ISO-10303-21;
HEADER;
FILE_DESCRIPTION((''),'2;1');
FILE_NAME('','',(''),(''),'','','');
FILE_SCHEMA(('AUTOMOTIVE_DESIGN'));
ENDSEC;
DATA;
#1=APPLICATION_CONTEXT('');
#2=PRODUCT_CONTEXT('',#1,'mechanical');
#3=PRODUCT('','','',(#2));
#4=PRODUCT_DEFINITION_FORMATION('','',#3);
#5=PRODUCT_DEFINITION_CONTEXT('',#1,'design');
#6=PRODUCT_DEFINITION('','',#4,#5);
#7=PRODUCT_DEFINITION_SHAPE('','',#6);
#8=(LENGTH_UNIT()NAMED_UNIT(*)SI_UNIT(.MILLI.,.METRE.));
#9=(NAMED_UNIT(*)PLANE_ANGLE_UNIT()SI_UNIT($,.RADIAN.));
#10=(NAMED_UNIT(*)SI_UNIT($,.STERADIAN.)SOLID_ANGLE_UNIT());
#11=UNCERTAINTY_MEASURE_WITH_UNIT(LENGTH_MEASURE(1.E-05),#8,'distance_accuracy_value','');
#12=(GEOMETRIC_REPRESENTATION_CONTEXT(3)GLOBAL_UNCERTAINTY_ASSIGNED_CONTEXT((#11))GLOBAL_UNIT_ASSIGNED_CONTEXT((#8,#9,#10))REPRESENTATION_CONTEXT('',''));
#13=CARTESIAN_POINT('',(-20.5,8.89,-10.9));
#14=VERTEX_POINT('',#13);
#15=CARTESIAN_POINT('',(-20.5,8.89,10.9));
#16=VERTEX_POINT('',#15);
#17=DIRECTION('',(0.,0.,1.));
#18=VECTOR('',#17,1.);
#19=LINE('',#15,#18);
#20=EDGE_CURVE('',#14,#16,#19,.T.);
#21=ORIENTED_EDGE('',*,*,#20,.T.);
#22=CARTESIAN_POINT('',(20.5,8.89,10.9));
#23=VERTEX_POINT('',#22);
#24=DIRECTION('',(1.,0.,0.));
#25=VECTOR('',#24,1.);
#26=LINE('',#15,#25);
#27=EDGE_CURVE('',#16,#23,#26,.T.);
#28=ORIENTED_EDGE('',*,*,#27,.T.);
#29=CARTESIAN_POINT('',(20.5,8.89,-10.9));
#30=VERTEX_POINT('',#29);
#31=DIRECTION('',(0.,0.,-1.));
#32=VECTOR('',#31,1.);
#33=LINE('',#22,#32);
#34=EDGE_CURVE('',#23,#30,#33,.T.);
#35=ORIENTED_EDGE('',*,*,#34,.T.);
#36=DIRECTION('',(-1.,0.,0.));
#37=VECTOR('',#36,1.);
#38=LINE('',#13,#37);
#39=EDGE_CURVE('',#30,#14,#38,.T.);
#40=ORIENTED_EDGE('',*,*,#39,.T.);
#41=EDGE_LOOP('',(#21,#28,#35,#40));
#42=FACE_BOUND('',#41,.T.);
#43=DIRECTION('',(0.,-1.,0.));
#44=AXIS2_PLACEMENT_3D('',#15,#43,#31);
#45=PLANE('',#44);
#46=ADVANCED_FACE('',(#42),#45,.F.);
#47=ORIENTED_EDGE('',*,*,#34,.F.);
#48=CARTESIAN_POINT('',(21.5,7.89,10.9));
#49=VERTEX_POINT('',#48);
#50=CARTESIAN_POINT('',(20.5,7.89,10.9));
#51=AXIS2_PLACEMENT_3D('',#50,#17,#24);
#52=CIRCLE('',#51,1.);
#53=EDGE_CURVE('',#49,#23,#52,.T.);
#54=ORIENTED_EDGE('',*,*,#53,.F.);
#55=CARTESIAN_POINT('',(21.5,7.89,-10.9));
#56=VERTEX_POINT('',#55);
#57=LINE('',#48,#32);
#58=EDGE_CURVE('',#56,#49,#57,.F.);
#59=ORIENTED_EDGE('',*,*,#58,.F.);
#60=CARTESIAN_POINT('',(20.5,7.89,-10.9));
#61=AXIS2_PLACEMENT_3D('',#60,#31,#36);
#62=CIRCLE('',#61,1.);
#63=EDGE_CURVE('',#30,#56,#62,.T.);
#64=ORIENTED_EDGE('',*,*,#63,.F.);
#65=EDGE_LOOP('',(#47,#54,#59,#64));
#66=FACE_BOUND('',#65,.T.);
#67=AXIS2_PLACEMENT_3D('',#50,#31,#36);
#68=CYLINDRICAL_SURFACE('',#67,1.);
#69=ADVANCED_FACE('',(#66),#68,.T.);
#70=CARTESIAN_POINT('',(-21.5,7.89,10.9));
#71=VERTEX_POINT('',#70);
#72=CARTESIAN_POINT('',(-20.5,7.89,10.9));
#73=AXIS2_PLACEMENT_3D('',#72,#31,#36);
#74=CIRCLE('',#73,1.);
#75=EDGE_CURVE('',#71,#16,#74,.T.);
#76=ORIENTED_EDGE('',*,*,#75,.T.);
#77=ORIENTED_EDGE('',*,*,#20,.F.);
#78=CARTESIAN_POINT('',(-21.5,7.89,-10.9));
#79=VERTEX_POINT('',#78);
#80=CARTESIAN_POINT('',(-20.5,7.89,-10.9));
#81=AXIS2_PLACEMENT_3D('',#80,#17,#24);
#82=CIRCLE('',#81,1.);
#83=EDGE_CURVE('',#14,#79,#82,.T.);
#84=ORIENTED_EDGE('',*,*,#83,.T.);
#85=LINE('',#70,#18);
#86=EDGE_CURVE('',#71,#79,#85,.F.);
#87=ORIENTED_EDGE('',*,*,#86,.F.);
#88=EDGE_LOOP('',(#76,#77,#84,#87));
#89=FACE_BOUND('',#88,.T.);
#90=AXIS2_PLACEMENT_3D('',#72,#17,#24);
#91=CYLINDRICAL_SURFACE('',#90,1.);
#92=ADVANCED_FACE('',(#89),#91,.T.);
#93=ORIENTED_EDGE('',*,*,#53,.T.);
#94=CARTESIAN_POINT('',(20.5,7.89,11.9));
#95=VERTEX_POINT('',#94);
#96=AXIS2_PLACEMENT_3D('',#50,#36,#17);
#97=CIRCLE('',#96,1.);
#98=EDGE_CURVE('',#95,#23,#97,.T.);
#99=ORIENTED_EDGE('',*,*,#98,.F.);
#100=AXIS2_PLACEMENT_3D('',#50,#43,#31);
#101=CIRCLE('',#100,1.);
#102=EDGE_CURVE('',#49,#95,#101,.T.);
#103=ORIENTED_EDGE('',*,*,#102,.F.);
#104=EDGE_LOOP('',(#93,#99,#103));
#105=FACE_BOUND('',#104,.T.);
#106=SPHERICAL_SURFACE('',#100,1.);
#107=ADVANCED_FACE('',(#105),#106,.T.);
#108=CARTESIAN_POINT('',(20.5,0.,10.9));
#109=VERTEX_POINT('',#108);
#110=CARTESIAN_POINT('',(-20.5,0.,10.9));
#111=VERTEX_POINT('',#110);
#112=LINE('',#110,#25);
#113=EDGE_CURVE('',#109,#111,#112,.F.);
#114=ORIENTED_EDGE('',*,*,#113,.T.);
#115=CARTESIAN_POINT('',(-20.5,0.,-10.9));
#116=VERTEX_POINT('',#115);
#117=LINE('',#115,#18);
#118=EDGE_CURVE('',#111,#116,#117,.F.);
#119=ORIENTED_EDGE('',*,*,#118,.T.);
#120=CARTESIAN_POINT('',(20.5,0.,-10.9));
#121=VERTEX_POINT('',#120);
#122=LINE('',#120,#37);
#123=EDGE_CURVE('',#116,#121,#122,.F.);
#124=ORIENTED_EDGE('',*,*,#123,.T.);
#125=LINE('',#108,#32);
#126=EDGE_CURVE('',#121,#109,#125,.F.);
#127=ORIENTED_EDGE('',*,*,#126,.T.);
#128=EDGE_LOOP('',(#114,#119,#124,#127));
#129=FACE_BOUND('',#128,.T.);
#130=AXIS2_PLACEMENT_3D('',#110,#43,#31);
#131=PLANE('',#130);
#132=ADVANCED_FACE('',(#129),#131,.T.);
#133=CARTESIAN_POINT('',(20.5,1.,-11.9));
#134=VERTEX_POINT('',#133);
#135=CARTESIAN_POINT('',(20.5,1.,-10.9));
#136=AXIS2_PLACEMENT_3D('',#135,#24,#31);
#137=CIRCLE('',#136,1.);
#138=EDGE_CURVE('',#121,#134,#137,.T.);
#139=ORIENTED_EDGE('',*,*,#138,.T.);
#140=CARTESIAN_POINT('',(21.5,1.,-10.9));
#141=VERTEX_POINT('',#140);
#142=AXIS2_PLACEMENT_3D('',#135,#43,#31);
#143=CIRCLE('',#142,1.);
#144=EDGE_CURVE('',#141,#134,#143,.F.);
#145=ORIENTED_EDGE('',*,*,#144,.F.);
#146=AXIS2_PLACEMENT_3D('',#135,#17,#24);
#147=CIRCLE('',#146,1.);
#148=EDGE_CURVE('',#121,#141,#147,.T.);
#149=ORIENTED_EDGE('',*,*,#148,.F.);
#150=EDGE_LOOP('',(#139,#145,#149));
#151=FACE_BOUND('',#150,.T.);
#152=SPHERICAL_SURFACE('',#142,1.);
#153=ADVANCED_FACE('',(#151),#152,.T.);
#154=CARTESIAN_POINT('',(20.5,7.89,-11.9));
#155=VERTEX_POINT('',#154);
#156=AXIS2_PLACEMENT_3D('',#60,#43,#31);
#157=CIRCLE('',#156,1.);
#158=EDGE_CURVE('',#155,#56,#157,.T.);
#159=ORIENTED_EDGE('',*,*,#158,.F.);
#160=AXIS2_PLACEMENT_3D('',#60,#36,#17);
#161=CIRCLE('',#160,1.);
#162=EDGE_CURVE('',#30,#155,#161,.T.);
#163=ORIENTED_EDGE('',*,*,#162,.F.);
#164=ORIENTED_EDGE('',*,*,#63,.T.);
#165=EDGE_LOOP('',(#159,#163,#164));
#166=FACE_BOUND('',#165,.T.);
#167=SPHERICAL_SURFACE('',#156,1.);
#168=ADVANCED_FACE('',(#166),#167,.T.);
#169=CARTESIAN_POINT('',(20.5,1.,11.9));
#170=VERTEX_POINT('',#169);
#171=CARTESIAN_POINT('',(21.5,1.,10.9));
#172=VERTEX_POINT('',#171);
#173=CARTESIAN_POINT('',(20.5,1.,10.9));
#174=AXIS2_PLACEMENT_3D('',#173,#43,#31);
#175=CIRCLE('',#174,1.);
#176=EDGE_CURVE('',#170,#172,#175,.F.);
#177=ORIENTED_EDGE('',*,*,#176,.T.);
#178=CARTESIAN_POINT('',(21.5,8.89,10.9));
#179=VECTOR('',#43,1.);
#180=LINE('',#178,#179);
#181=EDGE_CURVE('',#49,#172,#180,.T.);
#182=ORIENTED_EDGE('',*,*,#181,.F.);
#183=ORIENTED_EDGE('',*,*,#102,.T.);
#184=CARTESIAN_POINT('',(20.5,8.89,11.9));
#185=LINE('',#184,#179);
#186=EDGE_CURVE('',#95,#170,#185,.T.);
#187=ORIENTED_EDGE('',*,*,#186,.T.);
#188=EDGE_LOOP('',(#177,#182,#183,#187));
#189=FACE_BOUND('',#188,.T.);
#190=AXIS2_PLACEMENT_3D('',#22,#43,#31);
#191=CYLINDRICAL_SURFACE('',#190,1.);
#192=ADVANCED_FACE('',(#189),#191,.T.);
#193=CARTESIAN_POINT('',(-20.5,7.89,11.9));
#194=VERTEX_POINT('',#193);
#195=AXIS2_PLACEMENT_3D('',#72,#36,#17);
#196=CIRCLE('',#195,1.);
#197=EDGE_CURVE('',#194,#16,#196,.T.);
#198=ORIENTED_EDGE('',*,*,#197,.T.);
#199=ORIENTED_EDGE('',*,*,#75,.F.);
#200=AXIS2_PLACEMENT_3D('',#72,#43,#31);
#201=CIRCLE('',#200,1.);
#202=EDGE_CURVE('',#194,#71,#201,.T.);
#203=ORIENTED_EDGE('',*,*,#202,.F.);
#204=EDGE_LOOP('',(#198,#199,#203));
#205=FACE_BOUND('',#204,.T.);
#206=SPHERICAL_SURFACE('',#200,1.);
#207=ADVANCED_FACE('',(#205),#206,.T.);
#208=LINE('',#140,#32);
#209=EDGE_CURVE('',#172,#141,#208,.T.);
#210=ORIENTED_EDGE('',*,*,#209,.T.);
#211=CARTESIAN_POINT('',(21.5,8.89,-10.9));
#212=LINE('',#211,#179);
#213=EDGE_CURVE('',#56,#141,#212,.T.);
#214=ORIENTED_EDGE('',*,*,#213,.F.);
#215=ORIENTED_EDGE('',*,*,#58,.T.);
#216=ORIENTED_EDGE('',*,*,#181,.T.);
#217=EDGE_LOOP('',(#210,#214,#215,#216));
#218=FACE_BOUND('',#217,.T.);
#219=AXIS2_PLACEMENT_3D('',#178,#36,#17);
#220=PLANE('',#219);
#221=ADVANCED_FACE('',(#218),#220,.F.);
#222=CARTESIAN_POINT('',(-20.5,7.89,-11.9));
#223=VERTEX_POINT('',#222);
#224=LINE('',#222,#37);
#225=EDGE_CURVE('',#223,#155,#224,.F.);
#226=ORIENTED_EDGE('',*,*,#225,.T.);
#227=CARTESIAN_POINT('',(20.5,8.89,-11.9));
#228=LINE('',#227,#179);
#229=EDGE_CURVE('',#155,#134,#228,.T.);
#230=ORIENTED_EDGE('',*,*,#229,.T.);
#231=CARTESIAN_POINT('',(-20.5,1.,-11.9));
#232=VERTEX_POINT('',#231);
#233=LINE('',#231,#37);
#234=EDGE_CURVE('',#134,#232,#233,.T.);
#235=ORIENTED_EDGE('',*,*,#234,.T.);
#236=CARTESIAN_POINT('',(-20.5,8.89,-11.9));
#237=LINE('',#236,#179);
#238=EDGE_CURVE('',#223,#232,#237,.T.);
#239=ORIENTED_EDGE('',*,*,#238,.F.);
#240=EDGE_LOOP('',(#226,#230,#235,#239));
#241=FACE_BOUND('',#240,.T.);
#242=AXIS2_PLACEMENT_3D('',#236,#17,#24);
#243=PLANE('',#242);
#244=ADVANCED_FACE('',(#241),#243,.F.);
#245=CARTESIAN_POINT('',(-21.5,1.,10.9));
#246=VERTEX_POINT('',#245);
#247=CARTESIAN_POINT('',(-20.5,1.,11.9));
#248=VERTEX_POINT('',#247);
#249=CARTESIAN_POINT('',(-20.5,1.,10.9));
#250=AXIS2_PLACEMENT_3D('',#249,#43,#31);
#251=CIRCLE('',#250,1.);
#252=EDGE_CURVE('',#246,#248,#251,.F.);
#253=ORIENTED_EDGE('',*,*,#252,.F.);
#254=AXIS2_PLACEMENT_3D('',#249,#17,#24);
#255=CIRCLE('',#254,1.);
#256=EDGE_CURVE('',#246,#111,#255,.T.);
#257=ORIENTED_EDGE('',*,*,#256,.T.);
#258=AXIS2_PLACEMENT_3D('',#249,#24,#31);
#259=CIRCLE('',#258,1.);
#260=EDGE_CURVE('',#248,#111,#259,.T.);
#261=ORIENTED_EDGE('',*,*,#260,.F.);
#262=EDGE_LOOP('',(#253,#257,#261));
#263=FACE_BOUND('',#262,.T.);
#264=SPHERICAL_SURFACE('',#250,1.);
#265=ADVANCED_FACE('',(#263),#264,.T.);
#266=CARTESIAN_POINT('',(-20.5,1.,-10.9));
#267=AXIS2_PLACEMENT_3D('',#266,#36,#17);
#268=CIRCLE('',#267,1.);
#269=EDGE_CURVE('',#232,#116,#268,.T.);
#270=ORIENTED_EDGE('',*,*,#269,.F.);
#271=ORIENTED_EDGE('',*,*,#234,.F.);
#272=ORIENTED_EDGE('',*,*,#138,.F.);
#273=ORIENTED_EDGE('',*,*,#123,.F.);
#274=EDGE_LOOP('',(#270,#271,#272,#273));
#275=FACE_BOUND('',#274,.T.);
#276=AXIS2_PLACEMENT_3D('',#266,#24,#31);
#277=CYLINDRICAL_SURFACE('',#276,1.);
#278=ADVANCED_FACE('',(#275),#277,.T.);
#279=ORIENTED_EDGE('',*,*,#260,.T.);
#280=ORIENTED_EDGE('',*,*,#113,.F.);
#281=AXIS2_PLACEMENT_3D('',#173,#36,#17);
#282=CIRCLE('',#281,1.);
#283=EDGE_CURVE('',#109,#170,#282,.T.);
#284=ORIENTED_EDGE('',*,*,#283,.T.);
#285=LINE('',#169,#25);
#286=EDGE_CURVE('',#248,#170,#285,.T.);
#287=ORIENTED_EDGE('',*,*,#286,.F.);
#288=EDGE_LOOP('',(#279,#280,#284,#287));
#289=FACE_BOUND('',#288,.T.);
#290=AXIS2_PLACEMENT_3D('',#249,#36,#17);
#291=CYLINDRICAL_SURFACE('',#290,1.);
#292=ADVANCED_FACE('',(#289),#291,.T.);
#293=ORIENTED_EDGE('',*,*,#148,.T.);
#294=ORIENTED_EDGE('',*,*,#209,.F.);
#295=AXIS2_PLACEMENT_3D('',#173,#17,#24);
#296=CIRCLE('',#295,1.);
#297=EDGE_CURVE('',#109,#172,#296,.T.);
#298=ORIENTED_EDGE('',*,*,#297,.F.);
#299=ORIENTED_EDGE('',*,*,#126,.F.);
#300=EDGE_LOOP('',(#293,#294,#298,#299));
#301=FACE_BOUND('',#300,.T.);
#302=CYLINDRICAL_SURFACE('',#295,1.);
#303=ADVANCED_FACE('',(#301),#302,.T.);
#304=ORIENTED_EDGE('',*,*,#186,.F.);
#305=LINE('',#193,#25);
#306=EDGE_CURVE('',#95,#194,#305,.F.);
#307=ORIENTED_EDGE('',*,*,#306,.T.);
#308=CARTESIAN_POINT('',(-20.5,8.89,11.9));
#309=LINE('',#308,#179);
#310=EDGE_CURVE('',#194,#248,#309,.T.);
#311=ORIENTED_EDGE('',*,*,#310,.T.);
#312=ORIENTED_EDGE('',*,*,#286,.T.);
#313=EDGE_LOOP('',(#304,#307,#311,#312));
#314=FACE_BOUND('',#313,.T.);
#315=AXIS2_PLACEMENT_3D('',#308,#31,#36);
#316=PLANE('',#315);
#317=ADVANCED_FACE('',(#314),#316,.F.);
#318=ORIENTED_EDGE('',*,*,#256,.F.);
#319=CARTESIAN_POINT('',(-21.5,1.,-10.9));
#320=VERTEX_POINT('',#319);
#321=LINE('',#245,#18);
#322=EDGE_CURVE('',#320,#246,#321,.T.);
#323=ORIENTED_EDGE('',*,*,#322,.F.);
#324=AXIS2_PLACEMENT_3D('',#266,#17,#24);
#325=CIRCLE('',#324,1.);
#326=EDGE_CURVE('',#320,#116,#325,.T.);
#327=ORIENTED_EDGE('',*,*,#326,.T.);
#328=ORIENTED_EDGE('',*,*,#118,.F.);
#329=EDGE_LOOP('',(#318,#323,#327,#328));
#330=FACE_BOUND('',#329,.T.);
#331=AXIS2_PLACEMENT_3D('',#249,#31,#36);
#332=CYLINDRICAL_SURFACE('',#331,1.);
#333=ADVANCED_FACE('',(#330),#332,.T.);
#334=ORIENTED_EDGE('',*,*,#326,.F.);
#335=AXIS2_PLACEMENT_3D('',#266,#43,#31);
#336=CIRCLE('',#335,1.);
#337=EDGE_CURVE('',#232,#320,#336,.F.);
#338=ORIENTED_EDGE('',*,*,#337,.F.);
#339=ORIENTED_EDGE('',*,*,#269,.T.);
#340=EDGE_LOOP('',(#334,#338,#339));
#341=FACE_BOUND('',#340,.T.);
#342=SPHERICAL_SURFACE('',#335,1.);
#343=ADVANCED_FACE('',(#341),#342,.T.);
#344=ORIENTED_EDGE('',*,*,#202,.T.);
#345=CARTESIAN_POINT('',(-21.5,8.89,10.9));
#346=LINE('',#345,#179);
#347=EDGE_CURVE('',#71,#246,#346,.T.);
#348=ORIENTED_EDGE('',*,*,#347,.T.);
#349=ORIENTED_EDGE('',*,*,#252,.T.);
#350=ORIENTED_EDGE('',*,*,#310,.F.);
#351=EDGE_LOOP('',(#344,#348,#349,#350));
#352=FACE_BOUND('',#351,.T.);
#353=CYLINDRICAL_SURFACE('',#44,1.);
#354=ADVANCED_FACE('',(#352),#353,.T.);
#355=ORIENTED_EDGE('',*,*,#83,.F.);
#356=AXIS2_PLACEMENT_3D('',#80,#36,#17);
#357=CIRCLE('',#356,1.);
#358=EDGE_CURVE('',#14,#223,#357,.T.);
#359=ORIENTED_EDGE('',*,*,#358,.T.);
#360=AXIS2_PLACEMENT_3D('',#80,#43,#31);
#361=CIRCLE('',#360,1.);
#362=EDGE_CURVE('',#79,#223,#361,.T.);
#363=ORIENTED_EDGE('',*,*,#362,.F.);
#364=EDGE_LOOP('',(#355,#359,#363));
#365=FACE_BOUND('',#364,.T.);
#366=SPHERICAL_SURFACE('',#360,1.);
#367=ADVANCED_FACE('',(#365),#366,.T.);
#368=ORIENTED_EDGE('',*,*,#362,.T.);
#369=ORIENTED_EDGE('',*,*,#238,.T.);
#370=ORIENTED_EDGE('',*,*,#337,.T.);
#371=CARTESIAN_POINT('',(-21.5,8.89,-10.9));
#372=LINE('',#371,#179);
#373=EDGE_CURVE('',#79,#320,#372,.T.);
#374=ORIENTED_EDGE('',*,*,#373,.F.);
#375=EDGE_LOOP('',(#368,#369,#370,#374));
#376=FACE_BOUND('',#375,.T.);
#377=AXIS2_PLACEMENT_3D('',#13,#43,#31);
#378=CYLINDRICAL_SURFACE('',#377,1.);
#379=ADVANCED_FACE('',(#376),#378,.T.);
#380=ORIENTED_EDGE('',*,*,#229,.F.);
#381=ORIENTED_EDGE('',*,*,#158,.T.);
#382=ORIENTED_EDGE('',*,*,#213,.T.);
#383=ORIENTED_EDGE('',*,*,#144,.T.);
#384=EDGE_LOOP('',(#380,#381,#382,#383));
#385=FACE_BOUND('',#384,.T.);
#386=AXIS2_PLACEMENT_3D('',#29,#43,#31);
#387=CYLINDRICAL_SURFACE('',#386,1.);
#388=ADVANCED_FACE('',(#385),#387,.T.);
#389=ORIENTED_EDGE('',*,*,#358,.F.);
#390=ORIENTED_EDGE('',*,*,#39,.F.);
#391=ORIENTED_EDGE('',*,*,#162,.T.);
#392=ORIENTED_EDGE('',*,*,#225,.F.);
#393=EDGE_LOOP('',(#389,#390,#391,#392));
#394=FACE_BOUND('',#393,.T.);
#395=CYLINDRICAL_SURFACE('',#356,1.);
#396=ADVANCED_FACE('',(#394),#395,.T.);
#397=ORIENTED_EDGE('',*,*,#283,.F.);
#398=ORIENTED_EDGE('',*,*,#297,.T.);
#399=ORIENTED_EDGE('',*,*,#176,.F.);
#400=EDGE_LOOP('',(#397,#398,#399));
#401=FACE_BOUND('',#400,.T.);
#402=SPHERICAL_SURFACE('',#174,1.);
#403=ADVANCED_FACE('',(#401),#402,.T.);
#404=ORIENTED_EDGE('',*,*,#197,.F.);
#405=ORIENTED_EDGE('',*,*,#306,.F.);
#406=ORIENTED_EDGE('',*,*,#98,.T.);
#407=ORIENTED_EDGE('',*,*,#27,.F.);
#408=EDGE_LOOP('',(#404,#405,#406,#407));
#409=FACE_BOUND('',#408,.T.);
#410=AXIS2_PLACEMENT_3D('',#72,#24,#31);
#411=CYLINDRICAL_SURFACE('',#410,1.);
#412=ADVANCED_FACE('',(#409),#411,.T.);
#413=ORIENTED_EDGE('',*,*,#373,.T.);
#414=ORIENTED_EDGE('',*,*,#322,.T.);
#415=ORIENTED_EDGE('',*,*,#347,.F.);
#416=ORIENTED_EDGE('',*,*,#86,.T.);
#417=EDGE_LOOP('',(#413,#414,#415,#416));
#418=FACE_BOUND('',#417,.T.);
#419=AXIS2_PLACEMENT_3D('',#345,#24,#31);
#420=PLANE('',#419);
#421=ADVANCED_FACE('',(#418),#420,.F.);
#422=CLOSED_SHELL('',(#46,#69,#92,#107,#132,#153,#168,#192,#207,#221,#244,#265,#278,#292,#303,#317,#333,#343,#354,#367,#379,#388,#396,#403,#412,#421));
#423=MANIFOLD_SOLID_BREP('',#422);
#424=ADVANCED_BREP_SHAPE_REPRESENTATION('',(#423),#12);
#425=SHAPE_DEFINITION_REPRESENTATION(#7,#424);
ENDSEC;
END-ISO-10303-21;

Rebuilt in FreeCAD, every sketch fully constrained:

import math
import FreeCAD as App
import Part
import Sketcher
from FreeCAD import Vector
Q = App.Units.Quantity


def edges_at(feature, points):
    """Names of the edges that pass closest to the given points."""
    edges = feature.Shape.Edges
    near = lambda p: min(range(len(edges)), key=lambda i: edges[i].distToShape(Part.Vertex(*p))[0])
    return sorted({f"Edge{near(p) + 1}" for p in points})

doc = App.newDocument("Part")
body = doc.addObject("PartDesign::Body", "Body")

# Sketch on XZ plane
sketch1 = body.newObject("Sketcher::SketchObject", "Sketch")
sketch1.AttachmentSupport = (doc.getObject("XZ_Plane"), [""])
sketch1.MapMode = "FlatFace"
sketch1.addGeometry([
    Part.LineSegment(Vector(-20.5, 11.9, 0), Vector(20.5, 11.9, 0)),  # 0
    Part.ArcOfCircle(Part.Circle(Vector(20.5, 10.9, 0), Vector(0, 0, 1), 1), math.radians(0), math.radians(90)),  # 1
    Part.LineSegment(Vector(21.5, 10.9, 0), Vector(21.5, -10.9, 0)),  # 2
    Part.ArcOfCircle(Part.Circle(Vector(20.5, -10.9, 0), Vector(0, 0, 1), 1), math.radians(-90), math.radians(0)),  # 3
    Part.LineSegment(Vector(20.5, -11.9, 0), Vector(-20.5, -11.9, 0)),  # 4
    Part.ArcOfCircle(Part.Circle(Vector(-20.5, -10.9, 0), Vector(0, 0, 1), 1), math.radians(-180), math.radians(-90)),  # 5
    Part.LineSegment(Vector(-21.5, -10.9, 0), Vector(-21.5, 10.9, 0)),  # 6
    Part.ArcOfCircle(Part.Circle(Vector(-20.5, 10.9, 0), Vector(0, 0, 1), 1), math.radians(90), math.radians(180)),  # 7
], False)
sketch1.addConstraint([
    Sketcher.Constraint("Tangent", 0, 2, 1, 2),
    Sketcher.Constraint("Tangent", 1, 1, 2, 1),
    Sketcher.Constraint("Tangent", 2, 2, 3, 2),
    Sketcher.Constraint("Tangent", 3, 1, 4, 1),
    Sketcher.Constraint("Tangent", 4, 2, 5, 2),
    Sketcher.Constraint("Tangent", 5, 1, 6, 1),
    Sketcher.Constraint("Tangent", 6, 2, 7, 2),
    Sketcher.Constraint("Tangent", 7, 1, 0, 1),
    Sketcher.Constraint("Horizontal", 0),
    Sketcher.Constraint("Vertical", 2),
    Sketcher.Constraint("Horizontal", 4),
    Sketcher.Constraint("Vertical", 6),
    Sketcher.Constraint("Equal", 1, 3),
    Sketcher.Constraint("Equal", 3, 5),
    Sketcher.Constraint("Equal", 5, 7),
    Sketcher.Constraint("Symmetric", 1, 3, 5, 3, -1, 1),
    Sketcher.Constraint("Radius", 1, Q("1 mm")),
    Sketcher.Constraint("DistanceX", 0, 1, 0, 2, Q("41 mm")),
    Sketcher.Constraint("DistanceY", 2, 2, 2, 1, Q("21.8 mm")),
])
pad1 = body.newObject("PartDesign::Pad", "Pad")
pad1.Profile = sketch1
pad1.Length = 8.89
pad1.Reversed = True
doc.recompute()

fillet = body.newObject("PartDesign::Fillet", "Fillet")
fillet.Base = (pad1, edges_at(pad1, [
    (21.207, 8.89, 11.607),
    (0, 0, 11.9),
    (-21.207, 0, 11.607),
    (21.5, 8.89, 0),
    (21.207, 8.89, -11.607),
    (0, 8.89, -11.9),
    (-21.207, 8.89, -11.607),
    (-21.5, 8.89, 0),
    (-21.207, 8.89, 11.607),
    (0, 8.89, 11.9),
    (-21.5, 0, 0),
    (-21.207, 0, -11.607),
    (0, 0, -11.9),
    (21.207, 0, -11.607),
    (21.5, 0, 0),
    (21.207, 0, 11.607),
]))
fillet.Radius = 1

doc.recompute()
